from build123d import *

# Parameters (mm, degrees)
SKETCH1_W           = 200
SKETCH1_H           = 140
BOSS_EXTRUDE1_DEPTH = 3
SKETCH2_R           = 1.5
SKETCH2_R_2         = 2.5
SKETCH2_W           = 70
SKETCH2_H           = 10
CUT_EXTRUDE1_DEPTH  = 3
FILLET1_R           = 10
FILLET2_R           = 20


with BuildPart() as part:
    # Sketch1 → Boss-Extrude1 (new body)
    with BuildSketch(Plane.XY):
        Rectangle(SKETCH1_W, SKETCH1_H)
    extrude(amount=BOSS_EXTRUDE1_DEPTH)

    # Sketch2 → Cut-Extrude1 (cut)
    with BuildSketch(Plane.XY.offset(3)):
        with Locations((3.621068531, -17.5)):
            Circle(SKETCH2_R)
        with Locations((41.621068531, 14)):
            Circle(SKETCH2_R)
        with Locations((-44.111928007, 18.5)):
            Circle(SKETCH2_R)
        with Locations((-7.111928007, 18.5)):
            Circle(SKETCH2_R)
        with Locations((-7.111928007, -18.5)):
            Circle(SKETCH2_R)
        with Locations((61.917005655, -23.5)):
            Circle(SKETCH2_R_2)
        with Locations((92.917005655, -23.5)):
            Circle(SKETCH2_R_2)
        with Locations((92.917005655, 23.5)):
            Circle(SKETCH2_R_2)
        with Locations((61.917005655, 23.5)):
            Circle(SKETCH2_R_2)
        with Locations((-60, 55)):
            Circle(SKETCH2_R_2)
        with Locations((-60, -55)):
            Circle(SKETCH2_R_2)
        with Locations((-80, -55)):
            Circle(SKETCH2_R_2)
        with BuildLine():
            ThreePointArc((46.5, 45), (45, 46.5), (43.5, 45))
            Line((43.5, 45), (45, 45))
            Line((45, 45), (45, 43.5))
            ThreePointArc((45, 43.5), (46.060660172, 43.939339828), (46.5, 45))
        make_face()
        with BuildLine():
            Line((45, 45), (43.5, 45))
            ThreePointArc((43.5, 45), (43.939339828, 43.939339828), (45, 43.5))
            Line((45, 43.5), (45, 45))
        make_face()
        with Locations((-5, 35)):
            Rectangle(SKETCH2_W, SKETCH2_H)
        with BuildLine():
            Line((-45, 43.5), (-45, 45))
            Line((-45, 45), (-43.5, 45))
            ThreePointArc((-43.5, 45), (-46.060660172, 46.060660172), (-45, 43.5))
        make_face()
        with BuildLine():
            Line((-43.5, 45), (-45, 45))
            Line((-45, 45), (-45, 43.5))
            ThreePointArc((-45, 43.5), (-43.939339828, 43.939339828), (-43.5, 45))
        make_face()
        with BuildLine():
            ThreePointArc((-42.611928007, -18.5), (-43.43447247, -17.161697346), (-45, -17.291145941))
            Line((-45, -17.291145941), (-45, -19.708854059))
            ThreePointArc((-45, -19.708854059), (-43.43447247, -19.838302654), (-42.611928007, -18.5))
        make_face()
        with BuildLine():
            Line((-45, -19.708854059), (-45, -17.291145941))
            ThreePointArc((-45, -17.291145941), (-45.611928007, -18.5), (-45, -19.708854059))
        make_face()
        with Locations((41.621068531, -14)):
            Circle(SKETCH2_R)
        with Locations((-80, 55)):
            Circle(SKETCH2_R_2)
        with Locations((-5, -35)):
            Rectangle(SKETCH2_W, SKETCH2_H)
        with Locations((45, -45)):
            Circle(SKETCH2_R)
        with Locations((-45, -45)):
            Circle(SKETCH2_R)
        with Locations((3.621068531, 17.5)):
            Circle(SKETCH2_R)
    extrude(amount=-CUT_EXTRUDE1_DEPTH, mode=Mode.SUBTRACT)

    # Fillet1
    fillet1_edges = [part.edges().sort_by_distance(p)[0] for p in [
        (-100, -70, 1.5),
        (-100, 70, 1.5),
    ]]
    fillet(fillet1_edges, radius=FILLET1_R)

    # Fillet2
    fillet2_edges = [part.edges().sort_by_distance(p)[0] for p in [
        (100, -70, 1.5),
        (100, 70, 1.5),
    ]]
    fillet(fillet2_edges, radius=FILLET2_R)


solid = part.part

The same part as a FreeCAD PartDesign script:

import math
import FreeCAD as App
import Part
import Sketcher


def edges_at(feature, points):
    """Names of the edges that pass closest to the given points."""
    edges = feature.Shape.Edges
    near = lambda p: min(range(len(edges)), key=lambda i: edges[i].distToShape(Part.Vertex(*p))[0])
    return sorted({f"Edge{near(p) + 1}" for p in points})


def add_polygon(sketch, points):
    """Adds a closed chain of lines whose ends are joined by coincident constraints."""
    first, n = sketch.GeometryCount, len(points)
    for a, b in zip(points, points[1:] + points[:1]):
        sketch.addGeometry(Part.LineSegment(App.Vector(*a, 0), App.Vector(*b, 0)), False)
    for i in range(n):
        sketch.addConstraint(Sketcher.Constraint("Coincident", first + i, 2, first + (i + 1) % n, 1))

doc = App.newDocument("Part")
body = doc.addObject("PartDesign::Body", "Body")

sketch1 = body.newObject("Sketcher::SketchObject", "Sketch")
sketch1.AttachmentSupport = (doc.getObject("XY_Plane"), [""])
sketch1.MapMode = "FlatFace"
add_polygon(sketch1, [(-100, 70), (-100, -70), (100, -70), (100, 70)])
sketch1.addConstraint(Sketcher.Constraint("Vertical", 0))
sketch1.addConstraint(Sketcher.Constraint("Horizontal", 1))
sketch1.addConstraint(Sketcher.Constraint("Vertical", 2))
sketch1.addConstraint(Sketcher.Constraint("Horizontal", 3))
sketch1.addConstraint(Sketcher.Constraint("Symmetric", 0, 2, 2, 2, -1, 1))
sketch1.addConstraint(Sketcher.Constraint("DistanceX", 1, 1, 1, 2, 200.0))
sketch1.addConstraint(Sketcher.Constraint("DistanceY", 0, 2, 0, 1, 140.0))
pad1 = body.newObject("PartDesign::Pad", "Pad")
pad1.Profile = sketch1
pad1.Length = 3

sketch2 = body.newObject("Sketcher::SketchObject", "Sketch001")
sketch2.AttachmentSupport = (doc.getObject("XY_Plane"), [""])
sketch2.MapMode = "FlatFace"
sketch2.AttachmentOffset = App.Placement(App.Vector(0, 0, 3), App.Rotation())
sketch2.addGeometry(Part.Circle(App.Vector(3.6, -17.5, 0), App.Vector(0, 0, 1), 1.5), False)
sketch2.addGeometry(Part.Circle(App.Vector(41.6, 14, 0), App.Vector(0, 0, 1), 1.5), False)
sketch2.addGeometry(Part.Circle(App.Vector(-44.1, 18.5, 0), App.Vector(0, 0, 1), 1.5), False)
sketch2.addGeometry(Part.Circle(App.Vector(-7.1, 18.5, 0), App.Vector(0, 0, 1), 1.5), False)
sketch2.addGeometry(Part.Circle(App.Vector(-7.1, -18.5, 0), App.Vector(0, 0, 1), 1.5), False)
sketch2.addGeometry(Part.Circle(App.Vector(61.9, -23.5, 0), App.Vector(0, 0, 1), 2.5), False)
sketch2.addGeometry(Part.Circle(App.Vector(92.9, -23.5, 0), App.Vector(0, 0, 1), 2.5), False)
sketch2.addGeometry(Part.Circle(App.Vector(92.9, 23.5, 0), App.Vector(0, 0, 1), 2.5), False)
sketch2.addGeometry(Part.Circle(App.Vector(61.9, 23.5, 0), App.Vector(0, 0, 1), 2.5), False)
sketch2.addGeometry(Part.Circle(App.Vector(-60, 55, 0), App.Vector(0, 0, 1), 2.5), False)
sketch2.addGeometry(Part.Circle(App.Vector(-60, -55, 0), App.Vector(0, 0, 1), 2.5), False)
sketch2.addGeometry(Part.Circle(App.Vector(-80, -55, 0), App.Vector(0, 0, 1), 2.5), False)
sketch2.addGeometry(Part.ArcOfCircle(Part.Circle(App.Vector(45, 45, 0), App.Vector(0, 0, 1), 1.5), math.radians(0), math.radians(180)), False)
sketch2.addGeometry(Part.ArcOfCircle(Part.Circle(App.Vector(45, 45, 0), App.Vector(0, 0, 1), 1.5), math.radians(180), math.radians(270)), False)
sketch2.addGeometry(Part.ArcOfCircle(Part.Circle(App.Vector(45, 45, 0), App.Vector(0, 0, 1), 1.5), math.radians(-90), math.radians(0)), False)
add_polygon(sketch2, [(-40, 40), (-40, 30), (30, 30), (30, 40)])
sketch2.addGeometry(Part.ArcOfCircle(Part.Circle(App.Vector(-45, 45, 0), App.Vector(0, 0, 1), 1.5), math.radians(0), math.radians(270)), False)
sketch2.addGeometry(Part.ArcOfCircle(Part.Circle(App.Vector(-45, 45, 0), App.Vector(0, 0, 1), 1.5), math.radians(-90), math.radians(0)), False)
sketch2.addGeometry(Part.ArcOfCircle(Part.Circle(App.Vector(-44.1, -18.5, 0), App.Vector(0, 0, 1), 1.5), math.radians(0), math.radians(126)), False)
sketch2.addGeometry(Part.ArcOfCircle(Part.Circle(App.Vector(-44.1, -18.5, 0), App.Vector(0, 0, 1), 1.5), math.radians(126), math.radians(234)), False)
sketch2.addGeometry(Part.ArcOfCircle(Part.Circle(App.Vector(-44.1, -18.5, 0), App.Vector(0, 0, 1), 1.5), math.radians(-126), math.radians(0)), False)
sketch2.addGeometry(Part.Circle(App.Vector(41.6, -14, 0), App.Vector(0, 0, 1), 1.5), False)
sketch2.addGeometry(Part.Circle(App.Vector(-80, 55, 0), App.Vector(0, 0, 1), 2.5), False)
add_polygon(sketch2, [(-40, -30), (-40, -40), (30, -40), (30, -30)])
sketch2.addGeometry(Part.Circle(App.Vector(45, -45, 0), App.Vector(0, 0, 1), 1.5), False)
sketch2.addGeometry(Part.Circle(App.Vector(-45, -45, 0), App.Vector(0, 0, 1), 1.5), False)
sketch2.addGeometry(Part.Circle(App.Vector(3.6, 17.5, 0), App.Vector(0, 0, 1), 1.5), False)
sketch2.addConstraint(Sketcher.Constraint("Tangent", 12, 2, 13, 1))
sketch2.addConstraint(Sketcher.Constraint("Tangent", 13, 2, 14, 1))
sketch2.addConstraint(Sketcher.Constraint("Tangent", 14, 2, 12, 1))
sketch2.addConstraint(Sketcher.Constraint("Tangent", 19, 1, 20, 2))
sketch2.addConstraint(Sketcher.Constraint("Coincident", 20, 1, 19, 2))
sketch2.addConstraint(Sketcher.Constraint("Tangent", 21, 2, 22, 1))
sketch2.addConstraint(Sketcher.Constraint("Tangent", 22, 2, 23, 1))
sketch2.addConstraint(Sketcher.Constraint("Tangent", 23, 2, 21, 1))
sketch2.addConstraint(Sketcher.Constraint("Vertical", 15))
sketch2.addConstraint(Sketcher.Constraint("Horizontal", 16))
sketch2.addConstraint(Sketcher.Constraint("Vertical", 17))
sketch2.addConstraint(Sketcher.Constraint("Horizontal", 18))
sketch2.addConstraint(Sketcher.Constraint("Vertical", 26))
sketch2.addConstraint(Sketcher.Constraint("Horizontal", 27))
sketch2.addConstraint(Sketcher.Constraint("Vertical", 28))
sketch2.addConstraint(Sketcher.Constraint("Horizontal", 29))
sketch2.addConstraint(Sketcher.Constraint("Equal", 0, 1))
sketch2.addConstraint(Sketcher.Constraint("Equal", 1, 2))
sketch2.addConstraint(Sketcher.Constraint("Equal", 2, 3))
sketch2.addConstraint(Sketcher.Constraint("Equal", 3, 4))
sketch2.addConstraint(Sketcher.Constraint("Equal", 5, 6))
sketch2.addConstraint(Sketcher.Constraint("Equal", 6, 7))
sketch2.addConstraint(Sketcher.Constraint("Equal", 7, 8))
sketch2.addConstraint(Sketcher.Constraint("Equal", 8, 9))
sketch2.addConstraint(Sketcher.Constraint("Equal", 9, 10))
sketch2.addConstraint(Sketcher.Constraint("Equal", 10, 11))
sketch2.addConstraint(Sketcher.Constraint("Equal", 4, 12))
sketch2.addConstraint(Sketcher.Constraint("Equal", 14, 19))
sketch2.addConstraint(Sketcher.Constraint("Equal", 20, 21))
sketch2.addConstraint(Sketcher.Constraint("Equal", 23, 24))
sketch2.addConstraint(Sketcher.Constraint("Equal", 11, 25))
sketch2.addConstraint(Sketcher.Constraint("Equal", 24, 30))
sketch2.addConstraint(Sketcher.Constraint("Equal", 30, 31))
sketch2.addConstraint(Sketcher.Constraint("Equal", 31, 32))
sketch2.addConstraint(Sketcher.Constraint("Symmetric", 19, 3, 30, 3, -1, 1))
sketch2.addConstraint(Sketcher.Constraint("Symmetric", 12, 3, 31, 3, -1, 1))
sketch2.addConstraint(Sketcher.Constraint("Symmetric", 12, 3, 19, 3, -2))
sketch2.addConstraint(Sketcher.Constraint("Symmetric", 3, 3, 4, 3, -1))
sketch2.addConstraint(Sketcher.Constraint("Symmetric", 6, 3, 7, 3, -1))
sketch2.addConstraint(Sketcher.Constraint("Symmetric", 5, 3, 8, 3, -1))
sketch2.addConstraint(Sketcher.Constraint("Symmetric", 9, 3, 10, 3, -1))
sketch2.addConstraint(Sketcher.Constraint("Symmetric", 2, 3, 21, 3, -1))
sketch2.addConstraint(Sketcher.Constraint("Symmetric", 1, 3, 24, 3, -1))
sketch2.addConstraint(Sketcher.Constraint("Symmetric", 11, 3, 25, 3, -1))
sketch2.addConstraint(Sketcher.Constraint("Symmetric", 0, 3, 32, 3, -1))
sketch2.addConstraint(Sketcher.Constraint("Symmetric", 18, 2, 26, 2, -1))
sketch2.addConstraint(Sketcher.Constraint("Symmetric", 16, 2, 28, 2, -1))
sketch2.addConstraint(Sketcher.Constraint("Horizontal", 2, 3, 3, 3))
sketch2.addConstraint(Sketcher.Constraint("Horizontal", 5, 3, 6, 3))
sketch2.addConstraint(Sketcher.Constraint("Horizontal", 10, 3, 11, 3))
sketch2.addConstraint(Sketcher.Constraint("Horizontal", 20, 3, 12, 2))
sketch2.addConstraint(Sketcher.Constraint("Horizontal", 12, 2, 14, 2))
sketch2.addConstraint(Sketcher.Constraint("Horizontal", 14, 2, 19, 1))
sketch2.addConstraint(Sketcher.Constraint("Horizontal", 22, 3, 23, 2))
sketch2.addConstraint(Sketcher.Constraint("Vertical", 30, 3, 13, 2))
sketch2.addConstraint(Sketcher.Constraint("Vertical", 31, 3, 20, 1))
sketch2.addConstraint(Sketcher.Constraint("Vertical", 20, 1, 21, 2))
sketch2.addConstraint(Sketcher.Constraint("Vertical", 21, 2, 22, 2))
sketch2.addConstraint(Sketcher.Constraint("Diameter", 0, 3.0))
sketch2.addConstraint(Sketcher.Constraint("Diameter", 5, 5.0))
sketch2.addConstraint(Sketcher.Constraint("DistanceX", 16, 1, 16, 2, 70.0))
sketch2.addConstraint(Sketcher.Constraint("DistanceY", 15, 2, 15, 1, 10.0))
sketch2.addConstraint(Sketcher.Constraint("DistanceY", -1, 1, 1, 3, 14.0))
sketch2.addConstraint(Sketcher.Constraint("DistanceX", 9, 3, -1, 1, 60.0))
sketch2.addConstraint(Sketcher.Constraint("DistanceY", -1, 1, 9, 3, 55.0))
sketch2.addConstraint(Sketcher.Constraint("DistanceX", 11, 3, -1, 1, 80.0))
sketch2.addConstraint(Sketcher.Constraint("DistanceX", -1, 1, 12, 3, 45.0))
sketch2.addConstraint(Sketcher.Constraint("DistanceY", -1, 1, 12, 3, 45.0))
sketch2.addConstraint(Sketcher.Constraint("DistanceX", 15, 2, -1, 1, 40.0))
sketch2.addConstraint(Sketcher.Constraint("DistanceY", -1, 1, 15, 2, 30.0))
sketch2.addConstraint(Sketcher.Constraint("DistanceX", 0, 3, 1, 3, 38.0))
sketch2.addConstraint(Sketcher.Constraint("DistanceY", 0, 3, 2, 3, 36.0))
sketch2.addConstraint(Sketcher.Constraint("DistanceX", 2, 3, 3, 3, 37.0))
sketch2.addConstraint(Sketcher.Constraint("DistanceY", 4, 3, 0, 3, 1.0))
sketch2.addConstraint(Sketcher.Constraint("DistanceY", 5, 3, 0, 3, 6.0))
sketch2.addConstraint(Sketcher.Constraint("DistanceX", 5, 3, 6, 3, 31.0))
sketch2.addConstraint(Sketcher.Constraint("DistanceX", -1, 1, 0, 3, 3.621069))
sketch2.addConstraint(Sketcher.Constraint("DistanceX", 2, 3, -1, 1, 44.111928))
sketch2.addConstraint(Sketcher.Constraint("DistanceX", -1, 1, 5, 3, 61.917006))
pocket1 = body.newObject("PartDesign::Pocket", "Pocket")
pocket1.Profile = sketch2
pocket1.Length = 3
doc.recompute()

fillet = body.newObject("PartDesign::Fillet", "Fillet")
fillet.Base = (pocket1, edges_at(pocket1, [(-100, -70, 1.5), (-100, 70, 1.5)]))
fillet.Radius = 10
doc.recompute()

fillet2 = body.newObject("PartDesign::Fillet", "Fillet001")
fillet2.Base = (fillet, edges_at(fillet, [(100, -70, 1.5), (100, 70, 1.5)]))
fillet2.Radius = 20

doc.recompute()
